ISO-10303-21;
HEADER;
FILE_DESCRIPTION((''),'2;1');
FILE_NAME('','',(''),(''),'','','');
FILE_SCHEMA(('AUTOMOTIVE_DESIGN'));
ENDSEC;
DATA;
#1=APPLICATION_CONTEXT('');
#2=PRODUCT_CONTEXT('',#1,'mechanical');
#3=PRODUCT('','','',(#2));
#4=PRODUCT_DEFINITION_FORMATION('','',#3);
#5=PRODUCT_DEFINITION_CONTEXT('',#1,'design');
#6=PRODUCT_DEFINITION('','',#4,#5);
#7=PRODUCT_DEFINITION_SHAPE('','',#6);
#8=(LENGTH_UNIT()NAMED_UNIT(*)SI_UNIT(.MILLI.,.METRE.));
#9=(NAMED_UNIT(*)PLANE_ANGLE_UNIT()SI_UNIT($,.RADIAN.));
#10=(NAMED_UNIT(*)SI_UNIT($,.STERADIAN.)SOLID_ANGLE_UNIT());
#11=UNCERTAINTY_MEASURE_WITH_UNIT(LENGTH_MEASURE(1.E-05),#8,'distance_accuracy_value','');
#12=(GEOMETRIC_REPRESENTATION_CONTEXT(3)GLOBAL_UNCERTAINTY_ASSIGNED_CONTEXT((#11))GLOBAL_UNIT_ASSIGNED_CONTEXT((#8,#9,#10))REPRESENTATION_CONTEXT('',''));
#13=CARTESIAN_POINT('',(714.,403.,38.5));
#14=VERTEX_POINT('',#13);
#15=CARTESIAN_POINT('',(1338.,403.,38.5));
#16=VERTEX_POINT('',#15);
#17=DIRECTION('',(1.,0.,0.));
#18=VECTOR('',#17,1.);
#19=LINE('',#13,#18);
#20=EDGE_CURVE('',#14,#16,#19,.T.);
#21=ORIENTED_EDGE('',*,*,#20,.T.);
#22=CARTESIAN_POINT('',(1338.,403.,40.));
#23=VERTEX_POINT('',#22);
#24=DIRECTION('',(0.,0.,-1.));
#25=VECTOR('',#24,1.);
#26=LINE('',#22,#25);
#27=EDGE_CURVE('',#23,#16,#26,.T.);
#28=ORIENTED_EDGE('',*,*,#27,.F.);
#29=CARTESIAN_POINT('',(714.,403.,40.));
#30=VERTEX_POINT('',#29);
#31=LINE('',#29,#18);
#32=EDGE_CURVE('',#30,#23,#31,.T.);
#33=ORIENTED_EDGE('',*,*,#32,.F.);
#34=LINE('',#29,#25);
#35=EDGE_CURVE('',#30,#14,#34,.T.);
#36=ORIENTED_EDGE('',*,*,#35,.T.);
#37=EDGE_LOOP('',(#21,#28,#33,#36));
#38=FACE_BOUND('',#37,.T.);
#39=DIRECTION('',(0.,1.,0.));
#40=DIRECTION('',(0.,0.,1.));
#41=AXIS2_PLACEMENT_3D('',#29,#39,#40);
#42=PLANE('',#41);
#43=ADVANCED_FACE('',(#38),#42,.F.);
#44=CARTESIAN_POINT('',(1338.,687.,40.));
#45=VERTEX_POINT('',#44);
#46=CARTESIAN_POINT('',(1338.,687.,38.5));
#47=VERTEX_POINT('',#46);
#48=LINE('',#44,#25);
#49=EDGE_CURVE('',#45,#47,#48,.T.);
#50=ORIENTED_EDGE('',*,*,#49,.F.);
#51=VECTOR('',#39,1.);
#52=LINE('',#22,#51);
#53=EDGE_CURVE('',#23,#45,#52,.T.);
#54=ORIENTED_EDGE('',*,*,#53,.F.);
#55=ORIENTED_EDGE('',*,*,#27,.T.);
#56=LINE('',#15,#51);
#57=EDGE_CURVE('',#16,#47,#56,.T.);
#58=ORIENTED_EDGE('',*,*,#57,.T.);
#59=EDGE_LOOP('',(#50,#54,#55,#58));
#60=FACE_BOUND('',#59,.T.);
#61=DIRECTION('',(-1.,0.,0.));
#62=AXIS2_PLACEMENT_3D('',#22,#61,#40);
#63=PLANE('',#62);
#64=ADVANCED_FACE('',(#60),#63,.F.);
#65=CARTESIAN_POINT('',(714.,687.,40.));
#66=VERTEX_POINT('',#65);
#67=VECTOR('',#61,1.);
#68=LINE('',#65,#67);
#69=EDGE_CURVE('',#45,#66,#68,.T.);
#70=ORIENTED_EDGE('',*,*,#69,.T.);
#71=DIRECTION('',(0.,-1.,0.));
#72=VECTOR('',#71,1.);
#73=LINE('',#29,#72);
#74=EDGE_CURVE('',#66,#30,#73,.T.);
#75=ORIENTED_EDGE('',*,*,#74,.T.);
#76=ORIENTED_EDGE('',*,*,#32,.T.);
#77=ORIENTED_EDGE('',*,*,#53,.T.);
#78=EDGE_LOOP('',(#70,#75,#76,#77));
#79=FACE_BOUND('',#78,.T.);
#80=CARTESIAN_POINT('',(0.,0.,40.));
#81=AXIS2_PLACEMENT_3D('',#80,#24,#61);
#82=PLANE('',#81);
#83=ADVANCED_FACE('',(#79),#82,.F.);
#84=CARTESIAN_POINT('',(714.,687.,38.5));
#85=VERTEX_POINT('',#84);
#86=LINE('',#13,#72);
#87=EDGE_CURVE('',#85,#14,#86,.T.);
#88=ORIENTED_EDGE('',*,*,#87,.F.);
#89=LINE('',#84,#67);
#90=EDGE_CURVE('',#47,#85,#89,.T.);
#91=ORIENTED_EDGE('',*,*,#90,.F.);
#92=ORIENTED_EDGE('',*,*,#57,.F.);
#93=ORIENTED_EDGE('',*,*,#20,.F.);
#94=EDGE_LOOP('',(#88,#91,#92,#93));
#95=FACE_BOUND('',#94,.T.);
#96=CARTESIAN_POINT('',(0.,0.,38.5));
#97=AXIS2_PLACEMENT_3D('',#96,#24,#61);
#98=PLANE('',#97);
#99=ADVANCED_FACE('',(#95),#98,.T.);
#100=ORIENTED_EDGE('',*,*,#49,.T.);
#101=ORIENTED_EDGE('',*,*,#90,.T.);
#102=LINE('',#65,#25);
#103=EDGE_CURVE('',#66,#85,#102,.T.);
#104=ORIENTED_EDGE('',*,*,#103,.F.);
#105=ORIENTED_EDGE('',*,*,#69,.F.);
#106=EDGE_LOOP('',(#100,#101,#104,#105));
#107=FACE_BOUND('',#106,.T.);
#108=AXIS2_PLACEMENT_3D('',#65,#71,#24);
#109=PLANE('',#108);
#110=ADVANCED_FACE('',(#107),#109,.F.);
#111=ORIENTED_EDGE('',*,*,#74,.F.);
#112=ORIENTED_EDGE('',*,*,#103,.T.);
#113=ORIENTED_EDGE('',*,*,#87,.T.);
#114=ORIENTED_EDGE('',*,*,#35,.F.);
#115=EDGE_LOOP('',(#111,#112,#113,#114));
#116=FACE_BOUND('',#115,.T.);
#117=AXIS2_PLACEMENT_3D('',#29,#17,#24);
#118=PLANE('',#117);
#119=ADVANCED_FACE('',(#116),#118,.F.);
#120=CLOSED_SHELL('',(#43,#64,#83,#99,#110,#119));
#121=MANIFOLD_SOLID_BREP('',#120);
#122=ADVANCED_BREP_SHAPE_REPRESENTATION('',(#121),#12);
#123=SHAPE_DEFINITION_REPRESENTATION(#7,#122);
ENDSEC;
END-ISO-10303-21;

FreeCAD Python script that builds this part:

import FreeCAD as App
import Part
import Sketcher

doc = App.newDocument("Part")
body = doc.addObject("PartDesign::Body", "Body")

# Sketch on XY plane
sketch1 = body.newObject("Sketcher::SketchObject", "Sketch")
sketch1.AttachmentSupport = (doc.getObject("XY_Plane"), [""])
sketch1.MapMode = "FlatFace"
sketch1.AttachmentOffset = App.Placement(App.Vector(0, 0, 38.5), App.Rotation())
sketch1.addGeometry([
    Part.LineSegment(App.Vector(714, 687, 0), App.Vector(714, 403, 0)),
    Part.LineSegment(App.Vector(714, 403, 0), App.Vector(1338, 403, 0)),
    Part.LineSegment(App.Vector(1338, 403, 0), App.Vector(1338, 687, 0)),
    Part.LineSegment(App.Vector(1338, 687, 0), App.Vector(714, 687, 0)),
], False)
sketch1.addConstraint([
    Sketcher.Constraint("Coincident", 0, 2, 1, 1),
    Sketcher.Constraint("Coincident", 1, 2, 2, 1),
    Sketcher.Constraint("Coincident", 2, 2, 3, 1),
    Sketcher.Constraint("Coincident", 3, 2, 0, 1),
    Sketcher.Constraint("Vertical", 0),
    Sketcher.Constraint("Horizontal", 1),
    Sketcher.Constraint("Vertical", 2),
    Sketcher.Constraint("Horizontal", 3),
    Sketcher.Constraint("DistanceX", 1, 1, 1, 2, 624.0),
    Sketcher.Constraint("DistanceY", 0, 2, 0, 1, 284.0),
    Sketcher.Constraint("DistanceX", -1, 1, 0, 2, 714.0),
    Sketcher.Constraint("DistanceY", -1, 1, 0, 2, 403.0),
])
pad1 = body.newObject("PartDesign::Pad", "Pad")
pad1.Profile = sketch1
pad1.Length = 1.5

doc.recompute()
